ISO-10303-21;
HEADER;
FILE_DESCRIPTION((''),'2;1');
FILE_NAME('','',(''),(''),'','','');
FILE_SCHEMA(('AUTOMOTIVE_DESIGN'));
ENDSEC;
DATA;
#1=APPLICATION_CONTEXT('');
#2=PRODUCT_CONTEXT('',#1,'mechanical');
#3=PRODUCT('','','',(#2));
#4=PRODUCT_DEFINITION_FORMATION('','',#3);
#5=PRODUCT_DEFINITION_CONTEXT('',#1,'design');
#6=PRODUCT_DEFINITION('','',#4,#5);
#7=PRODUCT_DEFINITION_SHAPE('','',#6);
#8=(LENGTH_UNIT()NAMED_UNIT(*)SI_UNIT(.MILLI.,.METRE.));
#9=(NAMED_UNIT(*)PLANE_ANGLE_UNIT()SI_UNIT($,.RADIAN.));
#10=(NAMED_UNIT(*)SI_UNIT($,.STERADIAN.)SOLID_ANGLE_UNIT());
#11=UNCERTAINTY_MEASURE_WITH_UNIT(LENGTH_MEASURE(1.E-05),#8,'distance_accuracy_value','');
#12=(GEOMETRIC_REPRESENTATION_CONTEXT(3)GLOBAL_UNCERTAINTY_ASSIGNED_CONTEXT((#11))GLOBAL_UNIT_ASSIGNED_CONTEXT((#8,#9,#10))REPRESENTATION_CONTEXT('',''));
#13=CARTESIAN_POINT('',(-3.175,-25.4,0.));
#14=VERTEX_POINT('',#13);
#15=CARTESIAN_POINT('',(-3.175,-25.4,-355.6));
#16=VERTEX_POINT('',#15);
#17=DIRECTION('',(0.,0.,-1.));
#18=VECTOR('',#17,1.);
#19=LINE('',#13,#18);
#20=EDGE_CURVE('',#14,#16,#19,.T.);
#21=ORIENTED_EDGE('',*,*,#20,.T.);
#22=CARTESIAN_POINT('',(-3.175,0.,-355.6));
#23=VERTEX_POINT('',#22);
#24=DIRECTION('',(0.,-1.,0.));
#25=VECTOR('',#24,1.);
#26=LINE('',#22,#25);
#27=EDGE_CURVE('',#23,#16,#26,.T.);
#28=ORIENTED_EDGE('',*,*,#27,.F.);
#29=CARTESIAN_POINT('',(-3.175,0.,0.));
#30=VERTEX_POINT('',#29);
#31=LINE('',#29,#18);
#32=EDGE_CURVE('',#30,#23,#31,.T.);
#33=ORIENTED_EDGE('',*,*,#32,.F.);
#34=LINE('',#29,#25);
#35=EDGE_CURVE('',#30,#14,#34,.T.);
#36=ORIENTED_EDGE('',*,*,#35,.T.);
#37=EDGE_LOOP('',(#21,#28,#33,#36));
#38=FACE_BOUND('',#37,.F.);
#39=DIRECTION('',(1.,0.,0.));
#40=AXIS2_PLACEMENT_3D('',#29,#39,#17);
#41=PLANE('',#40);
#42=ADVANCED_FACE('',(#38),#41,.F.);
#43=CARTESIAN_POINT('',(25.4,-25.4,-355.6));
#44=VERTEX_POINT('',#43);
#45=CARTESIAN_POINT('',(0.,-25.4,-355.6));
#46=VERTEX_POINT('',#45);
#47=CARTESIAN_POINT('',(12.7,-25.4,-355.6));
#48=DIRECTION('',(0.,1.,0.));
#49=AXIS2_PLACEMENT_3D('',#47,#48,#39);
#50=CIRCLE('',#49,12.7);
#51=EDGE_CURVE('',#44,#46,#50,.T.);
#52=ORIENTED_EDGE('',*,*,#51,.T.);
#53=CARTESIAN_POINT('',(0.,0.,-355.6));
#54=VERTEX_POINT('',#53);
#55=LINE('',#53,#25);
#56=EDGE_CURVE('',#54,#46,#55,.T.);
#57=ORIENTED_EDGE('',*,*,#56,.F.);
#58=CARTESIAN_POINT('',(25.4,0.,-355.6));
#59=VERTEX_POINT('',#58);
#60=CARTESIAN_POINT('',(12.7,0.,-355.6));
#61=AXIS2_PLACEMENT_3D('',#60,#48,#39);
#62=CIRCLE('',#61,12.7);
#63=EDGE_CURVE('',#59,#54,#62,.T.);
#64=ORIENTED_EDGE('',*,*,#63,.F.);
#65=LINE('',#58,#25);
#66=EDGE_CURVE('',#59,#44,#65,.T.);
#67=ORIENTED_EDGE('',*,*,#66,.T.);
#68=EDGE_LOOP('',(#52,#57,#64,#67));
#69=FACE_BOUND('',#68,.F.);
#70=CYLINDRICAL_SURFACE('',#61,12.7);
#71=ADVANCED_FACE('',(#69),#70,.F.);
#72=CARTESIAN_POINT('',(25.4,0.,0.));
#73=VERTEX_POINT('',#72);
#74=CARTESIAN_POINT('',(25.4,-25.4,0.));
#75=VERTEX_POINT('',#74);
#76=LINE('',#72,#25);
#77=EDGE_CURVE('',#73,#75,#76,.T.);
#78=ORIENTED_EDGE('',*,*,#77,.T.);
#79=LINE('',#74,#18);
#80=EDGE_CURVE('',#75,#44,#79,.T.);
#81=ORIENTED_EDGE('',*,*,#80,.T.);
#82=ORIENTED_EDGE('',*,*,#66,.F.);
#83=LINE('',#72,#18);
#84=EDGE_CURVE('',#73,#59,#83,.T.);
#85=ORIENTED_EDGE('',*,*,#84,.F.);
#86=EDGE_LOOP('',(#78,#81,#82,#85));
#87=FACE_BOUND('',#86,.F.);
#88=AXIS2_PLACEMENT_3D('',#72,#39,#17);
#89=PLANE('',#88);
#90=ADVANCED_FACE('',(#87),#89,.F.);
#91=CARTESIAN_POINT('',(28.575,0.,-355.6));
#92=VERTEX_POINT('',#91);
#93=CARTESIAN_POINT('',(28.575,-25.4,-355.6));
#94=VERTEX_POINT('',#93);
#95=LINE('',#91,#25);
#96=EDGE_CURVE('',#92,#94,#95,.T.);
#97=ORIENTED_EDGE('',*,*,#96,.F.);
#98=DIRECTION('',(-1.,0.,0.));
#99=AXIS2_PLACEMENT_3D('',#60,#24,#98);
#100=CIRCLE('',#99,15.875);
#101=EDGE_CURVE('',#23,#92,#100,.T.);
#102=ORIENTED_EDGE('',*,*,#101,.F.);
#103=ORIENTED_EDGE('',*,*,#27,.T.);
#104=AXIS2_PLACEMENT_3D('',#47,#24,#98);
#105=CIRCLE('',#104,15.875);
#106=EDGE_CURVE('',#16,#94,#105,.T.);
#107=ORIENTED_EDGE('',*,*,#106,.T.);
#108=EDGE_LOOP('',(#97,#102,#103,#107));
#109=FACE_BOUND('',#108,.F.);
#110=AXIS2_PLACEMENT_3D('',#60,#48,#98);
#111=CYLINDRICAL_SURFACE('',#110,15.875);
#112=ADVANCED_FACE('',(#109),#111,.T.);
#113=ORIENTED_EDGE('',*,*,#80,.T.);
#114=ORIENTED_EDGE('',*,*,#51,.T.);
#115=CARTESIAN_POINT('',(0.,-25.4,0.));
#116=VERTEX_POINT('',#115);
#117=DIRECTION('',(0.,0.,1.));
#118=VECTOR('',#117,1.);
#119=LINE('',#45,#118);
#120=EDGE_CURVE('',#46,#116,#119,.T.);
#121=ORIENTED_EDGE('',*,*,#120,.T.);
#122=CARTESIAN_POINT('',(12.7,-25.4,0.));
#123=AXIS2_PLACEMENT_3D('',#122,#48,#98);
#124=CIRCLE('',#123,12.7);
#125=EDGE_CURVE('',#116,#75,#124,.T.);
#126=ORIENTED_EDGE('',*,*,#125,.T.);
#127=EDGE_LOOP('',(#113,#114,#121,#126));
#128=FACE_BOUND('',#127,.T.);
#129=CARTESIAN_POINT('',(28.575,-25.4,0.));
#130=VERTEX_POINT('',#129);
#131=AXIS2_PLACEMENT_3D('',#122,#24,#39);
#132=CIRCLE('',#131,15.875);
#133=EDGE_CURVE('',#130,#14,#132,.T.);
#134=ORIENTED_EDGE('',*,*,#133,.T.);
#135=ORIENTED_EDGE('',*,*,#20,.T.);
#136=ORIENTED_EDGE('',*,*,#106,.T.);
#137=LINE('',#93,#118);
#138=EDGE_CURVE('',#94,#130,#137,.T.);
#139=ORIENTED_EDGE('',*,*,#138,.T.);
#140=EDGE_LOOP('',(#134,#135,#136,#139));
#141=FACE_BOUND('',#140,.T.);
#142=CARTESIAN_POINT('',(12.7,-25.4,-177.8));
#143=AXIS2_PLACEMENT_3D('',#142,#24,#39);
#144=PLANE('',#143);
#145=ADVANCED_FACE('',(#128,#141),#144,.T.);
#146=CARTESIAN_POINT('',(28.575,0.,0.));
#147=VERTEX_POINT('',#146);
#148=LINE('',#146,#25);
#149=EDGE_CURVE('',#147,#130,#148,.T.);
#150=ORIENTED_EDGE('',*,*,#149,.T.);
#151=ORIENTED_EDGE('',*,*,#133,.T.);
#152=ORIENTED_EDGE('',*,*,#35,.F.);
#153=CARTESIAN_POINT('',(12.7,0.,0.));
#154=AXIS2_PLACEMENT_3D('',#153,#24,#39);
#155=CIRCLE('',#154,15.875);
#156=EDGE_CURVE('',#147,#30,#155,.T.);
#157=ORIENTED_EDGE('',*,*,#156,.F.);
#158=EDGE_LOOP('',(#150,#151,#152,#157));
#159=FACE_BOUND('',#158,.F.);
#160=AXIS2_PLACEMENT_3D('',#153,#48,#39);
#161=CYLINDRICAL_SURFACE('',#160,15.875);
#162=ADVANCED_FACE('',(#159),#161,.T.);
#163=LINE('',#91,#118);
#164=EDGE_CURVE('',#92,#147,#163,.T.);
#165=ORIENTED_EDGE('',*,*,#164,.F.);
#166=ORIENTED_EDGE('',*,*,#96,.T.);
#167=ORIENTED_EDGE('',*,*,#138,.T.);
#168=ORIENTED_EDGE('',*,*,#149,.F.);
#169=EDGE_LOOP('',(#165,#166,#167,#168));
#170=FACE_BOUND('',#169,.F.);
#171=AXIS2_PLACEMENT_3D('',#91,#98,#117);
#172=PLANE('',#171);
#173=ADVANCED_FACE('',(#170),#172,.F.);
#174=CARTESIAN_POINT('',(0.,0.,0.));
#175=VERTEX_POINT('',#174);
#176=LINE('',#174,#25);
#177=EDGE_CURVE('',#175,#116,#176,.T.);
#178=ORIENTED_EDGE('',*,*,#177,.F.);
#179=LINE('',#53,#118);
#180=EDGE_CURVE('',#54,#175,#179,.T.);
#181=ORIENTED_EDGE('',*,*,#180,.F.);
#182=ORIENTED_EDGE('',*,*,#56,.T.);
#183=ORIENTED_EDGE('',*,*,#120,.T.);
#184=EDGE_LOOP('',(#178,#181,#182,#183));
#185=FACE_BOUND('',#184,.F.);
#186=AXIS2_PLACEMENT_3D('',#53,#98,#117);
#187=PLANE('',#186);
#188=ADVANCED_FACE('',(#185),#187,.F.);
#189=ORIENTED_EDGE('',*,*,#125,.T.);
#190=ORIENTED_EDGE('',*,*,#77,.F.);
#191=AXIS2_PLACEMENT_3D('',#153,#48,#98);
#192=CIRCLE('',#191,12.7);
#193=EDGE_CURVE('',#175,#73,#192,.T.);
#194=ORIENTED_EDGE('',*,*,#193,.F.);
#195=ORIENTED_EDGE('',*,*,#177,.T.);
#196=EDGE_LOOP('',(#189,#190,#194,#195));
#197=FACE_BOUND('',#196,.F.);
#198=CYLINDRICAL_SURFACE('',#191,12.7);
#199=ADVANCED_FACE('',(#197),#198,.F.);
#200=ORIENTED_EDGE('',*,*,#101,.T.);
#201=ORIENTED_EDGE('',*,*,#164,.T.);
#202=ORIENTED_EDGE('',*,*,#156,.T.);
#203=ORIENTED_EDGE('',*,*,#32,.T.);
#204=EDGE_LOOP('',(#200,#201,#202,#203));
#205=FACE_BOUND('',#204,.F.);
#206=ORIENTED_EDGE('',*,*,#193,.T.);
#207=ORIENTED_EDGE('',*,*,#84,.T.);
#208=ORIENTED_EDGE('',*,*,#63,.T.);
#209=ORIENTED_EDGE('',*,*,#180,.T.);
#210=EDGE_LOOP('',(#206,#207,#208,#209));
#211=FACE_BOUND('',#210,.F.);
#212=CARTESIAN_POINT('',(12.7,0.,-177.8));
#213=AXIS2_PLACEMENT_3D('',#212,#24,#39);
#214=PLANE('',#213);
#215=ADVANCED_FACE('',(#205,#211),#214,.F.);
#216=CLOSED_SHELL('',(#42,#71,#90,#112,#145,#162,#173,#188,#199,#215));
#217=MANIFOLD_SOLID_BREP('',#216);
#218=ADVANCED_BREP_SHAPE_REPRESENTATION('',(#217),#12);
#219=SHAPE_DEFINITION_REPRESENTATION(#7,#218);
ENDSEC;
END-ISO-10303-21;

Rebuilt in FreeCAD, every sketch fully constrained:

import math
import FreeCAD as App
import Part
import Sketcher
from FreeCAD import Vector
Q = App.Units.Quantity

doc = App.newDocument("Part")
body = doc.addObject("PartDesign::Body", "Body")

sketch1 = body.newObject("Sketcher::SketchObject", "Sketch")
sketch1.AttachmentSupport = (doc.getObject("XZ_Plane"), [""])
sketch1.MapMode = "FlatFace"
sketch1.addGeometry([
    Part.LineSegment(Vector(29, -356, 0), Vector(29, 0, 0)),
    Part.ArcOfCircle(Part.Circle(Vector(13, 0, 0), Vector(0, 0, 1), 16), math.radians(0), math.radians(180)),
    Part.LineSegment(Vector(-3, 0, 0), Vector(-3, -356, 0)),
    Part.ArcOfCircle(Part.Circle(Vector(13, -356, 0), Vector(0, 0, 1), 16), math.radians(180), math.radians(360)),
    Part.ArcOfCircle(Part.Circle(Vector(13, -356, 0), Vector(0, 0, 1), 13), math.radians(180), math.radians(360)),
    Part.LineSegment(Vector(0, -356, 0), Vector(0, 0, 0)),
    Part.ArcOfCircle(Part.Circle(Vector(13, 0, 0), Vector(0, 0, 1), 13), math.radians(0), math.radians(180)),
    Part.LineSegment(Vector(25, 0, 0), Vector(25, -356, 0)),
], False)
sketch1.addConstraint([
    Sketcher.Constraint("Tangent", 0, 2, 1, 1),
    Sketcher.Constraint("Tangent", 1, 2, 2, 1),
    Sketcher.Constraint("Tangent", 2, 2, 3, 1),
    Sketcher.Constraint("Tangent", 3, 2, 0, 1),
    Sketcher.Constraint("Tangent", 4, 1, 5, 1),
    Sketcher.Constraint("Tangent", 5, 2, 6, 2),
    Sketcher.Constraint("Tangent", 6, 1, 7, 1),
    Sketcher.Constraint("Tangent", 7, 2, 4, 2),
    Sketcher.Constraint("Vertical", 0),
    Sketcher.Constraint("Vertical", 2),
    Sketcher.Constraint("Vertical", 5),
    Sketcher.Constraint("Vertical", 7),
    Sketcher.Constraint("Coincident", 5, 2, -1, 1),
    Sketcher.Constraint("Coincident", 4, 3, 3, 3),
    Sketcher.Constraint("PointOnObject", 1, 3, -1),
    Sketcher.Constraint("Radius", 4, Q("0.5 in")),
    Sketcher.Constraint("DistanceY", 0, 1, 0, 2, Q("14 in")),
    Sketcher.Constraint("Radius", 1, Q("0.625 in")),
])
pad1 = body.newObject("PartDesign::Pad", "Pad")
pad1.Profile = sketch1
pad1.Length = Q("1 in")

doc.recompute()
